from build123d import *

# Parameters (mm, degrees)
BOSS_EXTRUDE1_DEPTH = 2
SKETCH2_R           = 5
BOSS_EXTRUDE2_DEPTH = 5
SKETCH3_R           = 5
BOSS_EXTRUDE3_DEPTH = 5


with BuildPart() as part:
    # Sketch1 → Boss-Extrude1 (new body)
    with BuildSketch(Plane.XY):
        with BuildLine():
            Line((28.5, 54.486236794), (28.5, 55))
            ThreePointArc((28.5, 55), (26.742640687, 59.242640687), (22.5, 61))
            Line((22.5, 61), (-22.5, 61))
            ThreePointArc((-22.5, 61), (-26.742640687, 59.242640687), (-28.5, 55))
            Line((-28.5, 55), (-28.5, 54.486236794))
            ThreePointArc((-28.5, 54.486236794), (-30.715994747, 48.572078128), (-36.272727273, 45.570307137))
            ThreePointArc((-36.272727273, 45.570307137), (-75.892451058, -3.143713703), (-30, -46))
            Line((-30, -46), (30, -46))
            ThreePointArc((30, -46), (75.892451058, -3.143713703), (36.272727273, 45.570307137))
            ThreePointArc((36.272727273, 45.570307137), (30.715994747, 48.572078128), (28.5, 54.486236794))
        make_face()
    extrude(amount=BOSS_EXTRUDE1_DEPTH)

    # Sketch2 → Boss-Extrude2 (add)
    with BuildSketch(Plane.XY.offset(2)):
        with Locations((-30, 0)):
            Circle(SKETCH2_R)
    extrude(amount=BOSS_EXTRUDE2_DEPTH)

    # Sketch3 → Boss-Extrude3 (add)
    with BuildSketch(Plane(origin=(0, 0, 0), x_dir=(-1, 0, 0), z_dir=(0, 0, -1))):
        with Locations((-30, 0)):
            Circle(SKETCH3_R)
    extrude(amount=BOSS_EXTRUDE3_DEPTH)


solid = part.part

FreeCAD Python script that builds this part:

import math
import FreeCAD as App
import Part
import Sketcher
from FreeCAD import Vector
Q = App.Units.Quantity

doc = App.newDocument("Part")
body = doc.addObject("PartDesign::Body", "Body")

sketch1 = body.newObject("Sketcher::SketchObject", "Sketch")
sketch1.AttachmentSupport = (doc.getObject("XY_Plane"), [""])
sketch1.MapMode = "FlatFace"
sketch1.addGeometry([
    Part.LineSegment(Vector(28.5, 54.486237, 0), Vector(28.5, 55, 0)),
    Part.ArcOfCircle(Part.Circle(Vector(22.5, 55, 0), Vector(0, 0, 1), 6), math.radians(0), math.radians(90)),
    Part.LineSegment(Vector(22.5, 61, 0), Vector(-22.5, 61, 0)),
    Part.ArcOfCircle(Part.Circle(Vector(-22.5, 55, 0), Vector(0, 0, 1), 6), math.radians(90), math.radians(180)),
    Part.LineSegment(Vector(-28.5, 55, 0), Vector(-28.5, 54.486237, 0)),
    Part.ArcOfCircle(Part.Circle(Vector(-37.5, 54.486237, 0), Vector(0, 0, 1), 9), math.radians(-82.16252), math.radians(0)),
    Part.ArcOfCircle(Part.Circle(Vector(-30, 0, 0), Vector(0, 0, 1), 46), math.radians(97.83748), math.radians(270)),
    Part.LineSegment(Vector(-30, -46, 0), Vector(30, -46, 0)),
    Part.ArcOfCircle(Part.Circle(Vector(30, 0, 0), Vector(0, 0, 1), 46), math.radians(-90), math.radians(82.16252)),
    Part.ArcOfCircle(Part.Circle(Vector(37.5, 54.486237, 0), Vector(0, 0, 1), 9), math.radians(180), math.radians(262.16252)),
], False)
sketch1.addConstraint([
    Sketcher.Constraint("Tangent", 0, 2, 1, 1),
    Sketcher.Constraint("Tangent", 1, 2, 2, 1),
    Sketcher.Constraint("Tangent", 2, 2, 3, 1),
    Sketcher.Constraint("Tangent", 3, 2, 4, 1),
    Sketcher.Constraint("Tangent", 4, 2, 5, 2),
    Sketcher.Constraint("Tangent", 5, 1, 6, 1),
    Sketcher.Constraint("Tangent", 6, 2, 7, 1),
    Sketcher.Constraint("Tangent", 7, 2, 8, 1),
    Sketcher.Constraint("Tangent", 8, 2, 9, 2),
    Sketcher.Constraint("Tangent", 9, 1, 0, 1),
    Sketcher.Constraint("Vertical", 0),
    Sketcher.Constraint("Horizontal", 2),
    Sketcher.Constraint("Vertical", 4),
    Sketcher.Constraint("Horizontal", 7),
    Sketcher.Constraint("Equal", 1, 3),
    Sketcher.Constraint("Equal", 6, 8),
    Sketcher.Constraint("Equal", 5, 9),
    Sketcher.Constraint("Symmetric", 6, 3, 8, 3, -1, 1),
    Sketcher.Constraint("Horizontal", 5, 3, 9, 3),
    Sketcher.Constraint("Radius", 1, Q("6 mm")),
    Sketcher.Constraint("Radius", 5, Q("9 mm")),
    Sketcher.Constraint("Radius", 6, Q("46 mm")),
    Sketcher.Constraint("DistanceX", 2, 2, 2, 1, Q("45 mm")),
    Sketcher.Constraint("DistanceX", 7, 1, 7, 2, Q("60 mm")),
    Sketcher.Constraint("DistanceY", -1, 1, 1, 3, Q("55 mm")),
])
pad1 = body.newObject("PartDesign::Pad", "Pad")
pad1.Profile = sketch1
pad1.Length = 2

sketch2 = body.newObject("Sketcher::SketchObject", "Sketch001")
sketch2.AttachmentSupport = (doc.getObject("XY_Plane"), [""])
sketch2.MapMode = "FlatFace"
sketch2.AttachmentOffset = App.Placement(Vector(0, 0, 2), App.Rotation())
sketch2.addGeometry(Part.Circle(Vector(-30, 0, 0), Vector(0, 0, 1), 5), False)
sketch2.addConstraint([
    Sketcher.Constraint("PointOnObject", 0, 3, -1),
    Sketcher.Constraint("Diameter", 0, Q("10 mm")),
    Sketcher.Constraint("DistanceX", 0, 3, -1, 1, Q("30 mm")),
])
pad2 = body.newObject("PartDesign::Pad", "Pad001")
pad2.Profile = sketch2
pad2.Length = 5

sketch3 = body.newObject("Sketcher::SketchObject", "Sketch002")
sketch3.AttachmentSupport = (doc.getObject("XY_Plane"), [""])
sketch3.MapMode = "FlatFace"
sketch3.addGeometry(Part.Circle(Vector(30, 0, 0), Vector(0, 0, 1), 5), False)
sketch3.addConstraint([
    Sketcher.Constraint("PointOnObject", 0, 3, -1),
    Sketcher.Constraint("Diameter", 0, Q("10 mm")),
    Sketcher.Constraint("DistanceX", -1, 1, 0, 3, Q("30 mm")),
])
pad3 = body.newObject("PartDesign::Pad", "Pad002")
pad3.Profile = sketch3
pad3.Length = 5
pad3.Reversed = True

doc.recompute()
